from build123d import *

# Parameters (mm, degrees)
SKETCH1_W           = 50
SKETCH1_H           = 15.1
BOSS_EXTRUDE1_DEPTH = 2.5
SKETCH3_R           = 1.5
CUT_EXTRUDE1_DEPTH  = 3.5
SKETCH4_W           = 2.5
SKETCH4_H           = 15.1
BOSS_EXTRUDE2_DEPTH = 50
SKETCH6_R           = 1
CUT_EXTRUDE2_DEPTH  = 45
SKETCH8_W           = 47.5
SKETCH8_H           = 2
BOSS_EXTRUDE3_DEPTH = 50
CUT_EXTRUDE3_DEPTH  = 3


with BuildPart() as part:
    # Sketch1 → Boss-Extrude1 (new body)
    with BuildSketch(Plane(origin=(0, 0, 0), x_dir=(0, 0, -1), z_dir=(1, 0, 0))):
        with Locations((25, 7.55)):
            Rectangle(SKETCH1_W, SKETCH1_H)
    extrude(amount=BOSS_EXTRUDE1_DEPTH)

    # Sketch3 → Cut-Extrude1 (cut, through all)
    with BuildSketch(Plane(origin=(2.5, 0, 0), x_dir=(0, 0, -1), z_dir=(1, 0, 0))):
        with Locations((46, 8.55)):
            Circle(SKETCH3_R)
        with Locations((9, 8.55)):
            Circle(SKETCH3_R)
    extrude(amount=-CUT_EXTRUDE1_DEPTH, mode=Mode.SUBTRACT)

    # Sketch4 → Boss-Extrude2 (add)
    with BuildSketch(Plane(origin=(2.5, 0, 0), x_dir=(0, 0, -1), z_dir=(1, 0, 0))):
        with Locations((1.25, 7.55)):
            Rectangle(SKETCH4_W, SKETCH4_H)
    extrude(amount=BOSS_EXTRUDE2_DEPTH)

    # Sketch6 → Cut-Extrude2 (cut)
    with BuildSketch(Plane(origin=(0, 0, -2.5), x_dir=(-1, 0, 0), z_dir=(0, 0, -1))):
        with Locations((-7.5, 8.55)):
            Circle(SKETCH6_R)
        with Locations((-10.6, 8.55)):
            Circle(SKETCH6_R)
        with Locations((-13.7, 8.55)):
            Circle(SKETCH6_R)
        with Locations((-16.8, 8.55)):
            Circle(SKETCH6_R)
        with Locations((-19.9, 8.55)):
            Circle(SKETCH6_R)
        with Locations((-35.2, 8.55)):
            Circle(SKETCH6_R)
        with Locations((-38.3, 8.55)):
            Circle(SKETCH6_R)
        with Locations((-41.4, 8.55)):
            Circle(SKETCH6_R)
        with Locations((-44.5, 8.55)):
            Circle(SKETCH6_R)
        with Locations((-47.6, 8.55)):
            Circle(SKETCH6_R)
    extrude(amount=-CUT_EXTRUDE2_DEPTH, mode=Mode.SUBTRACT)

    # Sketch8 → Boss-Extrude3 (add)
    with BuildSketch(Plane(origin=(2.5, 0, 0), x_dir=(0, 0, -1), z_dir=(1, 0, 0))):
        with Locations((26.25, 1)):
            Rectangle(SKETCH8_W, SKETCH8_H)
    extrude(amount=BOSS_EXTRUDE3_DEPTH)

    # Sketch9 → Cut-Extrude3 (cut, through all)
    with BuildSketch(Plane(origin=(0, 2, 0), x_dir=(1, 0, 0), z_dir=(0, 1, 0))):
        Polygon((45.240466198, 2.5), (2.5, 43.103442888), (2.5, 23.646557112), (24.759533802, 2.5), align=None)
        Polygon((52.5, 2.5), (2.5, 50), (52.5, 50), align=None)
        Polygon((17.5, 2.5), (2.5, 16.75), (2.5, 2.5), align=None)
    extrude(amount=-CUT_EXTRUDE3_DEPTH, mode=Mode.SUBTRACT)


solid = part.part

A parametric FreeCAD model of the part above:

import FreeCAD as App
import Part
import Sketcher
from FreeCAD import Vector


def add_polygon(sketch, points):
    """Adds a closed chain of lines whose ends are joined by coincident constraints."""
    first, n = sketch.GeometryCount, len(points)
    for a, b in zip(points, points[1:] + points[:1]):
        sketch.addGeometry(Part.LineSegment(App.Vector(*a, 0), App.Vector(*b, 0)), False)
    for i in range(n):
        sketch.addConstraint(Sketcher.Constraint("Coincident", first + i, 2, first + (i + 1) % n, 1))

doc = App.newDocument("Part")
body = doc.addObject("PartDesign::Body", "Body")

sketch1 = doc.addObject("Sketcher::SketchObject", "Sketch")
body.addObject(sketch1)
sketch1.AttachmentSupport = (doc.YZ_Plane, [""])
sketch1.MapMode = "FlatFace"
add_polygon(sketch1, [(15, 0), (0, 0), (0, -50), (15, -50)])
sketch1.addConstraint([
    Sketcher.Constraint("Horizontal", 0),
    Sketcher.Constraint("Vertical", 1),
    Sketcher.Constraint("Horizontal", 2),
    Sketcher.Constraint("Vertical", 3),
    Sketcher.Constraint("Coincident", 0, 2, -1, 1),
    Sketcher.Constraint("DistanceY", 1, 2, 1, 1, 50.0),
    Sketcher.Constraint("DistanceX", 0, 2, 0, 1, 15.1),
])
pad1 = doc.addObject("PartDesign::Pad", "Pad")
body.addObject(pad1)
pad1.Profile = sketch1
pad1.Length = 2.5

sketch2 = doc.addObject("Sketcher::SketchObject", "Sketch001")
body.addObject(sketch2)
sketch2.AttachmentSupport = (doc.YZ_Plane, [""])
sketch2.MapMode = "FlatFace"
sketch2.AttachmentOffset = App.Placement(Vector(0, 0, 2.5), App.Rotation())
sketch2.addGeometry([
    Part.Circle(Vector(8.6, -46, 0), Vector(0, 0, 1), 1.5),
    Part.Circle(Vector(8.6, -9, 0), Vector(0, 0, 1), 1.5),
], False)
sketch2.addConstraint([
    Sketcher.Constraint("Equal", 0, 1),
    Sketcher.Constraint("Vertical", 0, 3, 1, 3),
    Sketcher.Constraint("Diameter", 0, 3.0),
    Sketcher.Constraint("DistanceY", 0, 3, -1, 1, 46.0),
    Sketcher.Constraint("DistanceY", 1, 3, -1, 1, 9.0),
    Sketcher.Constraint("DistanceX", -1, 1, 0, 3, 8.55),
])
pocket1 = doc.addObject("PartDesign::Pocket", "Pocket")
body.addObject(pocket1)
pocket1.Profile = sketch2
pocket1.Type = "ThroughAll"

sketch3 = doc.addObject("Sketcher::SketchObject", "Sketch002")
body.addObject(sketch3)
sketch3.AttachmentSupport = (doc.YZ_Plane, [""])
sketch3.MapMode = "FlatFace"
sketch3.AttachmentOffset = App.Placement(Vector(0, 0, 2.5), App.Rotation())
add_polygon(sketch3, [(15.1, 0), (0, 0), (0, -2.5), (15.1, -2.5)])
sketch3.addConstraint([
    Sketcher.Constraint("Horizontal", 0),
    Sketcher.Constraint("Vertical", 1),
    Sketcher.Constraint("Horizontal", 2),
    Sketcher.Constraint("Vertical", 3),
    Sketcher.Constraint("Coincident", 0, 2, -1, 1),
    Sketcher.Constraint("DistanceX", 0, 2, 0, 1, 15.1),
    Sketcher.Constraint("DistanceY", 1, 2, 1, 1, 2.5),
])
pad2 = doc.addObject("PartDesign::Pad", "Pad001")
body.addObject(pad2)
pad2.Profile = sketch3
pad2.Length = 50

sketch4 = doc.addObject("Sketcher::SketchObject", "Sketch003")
body.addObject(sketch4)
sketch4.AttachmentSupport = (doc.XY_Plane, [""])
sketch4.MapMode = "FlatFace"
sketch4.AttachmentOffset = App.Placement(Vector(0, 0, -2.5), App.Rotation())
sketch4.addGeometry([
    Part.Circle(Vector(7.5, 8.6, 0), Vector(0, 0, 1), 1),
    Part.Circle(Vector(10.6, 8.6, 0), Vector(0, 0, 1), 1),
    Part.Circle(Vector(13.7, 8.6, 0), Vector(0, 0, 1), 1),
    Part.Circle(Vector(16.8, 8.6, 0), Vector(0, 0, 1), 1),
    Part.Circle(Vector(19.9, 8.6, 0), Vector(0, 0, 1), 1),
    Part.Circle(Vector(35.2, 8.6, 0), Vector(0, 0, 1), 1),
    Part.Circle(Vector(38.3, 8.6, 0), Vector(0, 0, 1), 1),
    Part.Circle(Vector(41.4, 8.6, 0), Vector(0, 0, 1), 1),
    Part.Circle(Vector(44.5, 8.6, 0), Vector(0, 0, 1), 1),
    Part.Circle(Vector(47.6, 8.6, 0), Vector(0, 0, 1), 1),
], False)
sketch4.addConstraint([
    Sketcher.Constraint("Equal", 0, 1),
    Sketcher.Constraint("Equal", 1, 2),
    Sketcher.Constraint("Equal", 2, 3),
    Sketcher.Constraint("Equal", 3, 4),
    Sketcher.Constraint("Equal", 4, 5),
    Sketcher.Constraint("Equal", 5, 6),
    Sketcher.Constraint("Equal", 6, 7),
    Sketcher.Constraint("Equal", 7, 8),
    Sketcher.Constraint("Equal", 8, 9),
    Sketcher.Constraint("Horizontal", 0, 3, 1, 3),
    Sketcher.Constraint("Horizontal", 1, 3, 2, 3),
    Sketcher.Constraint("Horizontal", 2, 3, 3, 3),
    Sketcher.Constraint("Horizontal", 3, 3, 4, 3),
    Sketcher.Constraint("Horizontal", 4, 3, 5, 3),
    Sketcher.Constraint("Horizontal", 5, 3, 6, 3),
    Sketcher.Constraint("Horizontal", 6, 3, 7, 3),
    Sketcher.Constraint("Horizontal", 7, 3, 8, 3),
    Sketcher.Constraint("Horizontal", 8, 3, 9, 3),
    Sketcher.Constraint("Diameter", 0, 2.0),
    Sketcher.Constraint("DistanceX", -1, 1, 0, 3, 7.5),
    Sketcher.Constraint("DistanceX", -1, 1, 1, 3, 10.6),
    Sketcher.Constraint("DistanceX", -1, 1, 2, 3, 13.7),
    Sketcher.Constraint("DistanceX", -1, 1, 3, 3, 16.8),
    Sketcher.Constraint("DistanceX", -1, 1, 4, 3, 19.9),
    Sketcher.Constraint("DistanceX", -1, 1, 5, 3, 35.2),
    Sketcher.Constraint("DistanceX", -1, 1, 6, 3, 38.3),
    Sketcher.Constraint("DistanceX", -1, 1, 7, 3, 41.4),
    Sketcher.Constraint("DistanceX", -1, 1, 8, 3, 44.5),
    Sketcher.Constraint("DistanceX", -1, 1, 9, 3, 47.6),
    Sketcher.Constraint("DistanceY", -1, 1, 0, 3, 8.55),
])
pocket2 = doc.addObject("PartDesign::Pocket", "Pocket001")
body.addObject(pocket2)
pocket2.Profile = sketch4
pocket2.Length = 45
pocket2.Reversed = True

sketch5 = doc.addObject("Sketcher::SketchObject", "Sketch004")
body.addObject(sketch5)
sketch5.AttachmentSupport = (doc.YZ_Plane, [""])
sketch5.MapMode = "FlatFace"
sketch5.AttachmentOffset = App.Placement(Vector(0, 0, 2.5), App.Rotation())
add_polygon(sketch5, [(2, -2.5), (0, -2.5), (0, -50), (2, -50)])
sketch5.addConstraint([
    Sketcher.Constraint("Horizontal", 0),
    Sketcher.Constraint("Vertical", 1),
    Sketcher.Constraint("Horizontal", 2),
    Sketcher.Constraint("Vertical", 3),
    Sketcher.Constraint("PointOnObject", 0, 2, -2),
    Sketcher.Constraint("DistanceX", 0, 2, 0, 1, 2.0),
    Sketcher.Constraint("DistanceY", 1, 2, 1, 1, 47.5),
    Sketcher.Constraint("DistanceY", 1, 2, -1, 1, 50.0),
])
pad3 = doc.addObject("PartDesign::Pad", "Pad002")
body.addObject(pad3)
pad3.Profile = sketch5
pad3.Length = 50

sketch6 = doc.addObject("Sketcher::SketchObject", "Sketch005")
body.addObject(sketch6)
sketch6.AttachmentSupport = (doc.XZ_Plane, [""])
sketch6.MapMode = "FlatFace"
sketch6.AttachmentOffset = App.Placement(Vector(0, 0, -2), App.Rotation())
add_polygon(sketch6, [(45, -2), (2, -43), (2, -24), (25, -2)])
add_polygon(sketch6, [(2, -50), (52, -2), (52, -50)])
add_polygon(sketch6, [(18, -2), (2, -17), (2, -2)])
sketch6.addConstraint([
    Sketcher.Constraint("Vertical", 1),
    Sketcher.Constraint("Horizontal", 3),
    Sketcher.Constraint("Vertical", 5),
    Sketcher.Constraint("Horizontal", 6),
    Sketcher.Constraint("Vertical", 8),
    Sketcher.Constraint("Horizontal", 9),
    Sketcher.Constraint("Parallel", 0, 2),
    Sketcher.Constraint("Parallel", 2, 4),
    Sketcher.Constraint("Parallel", 4, 7),
    Sketcher.Constraint("Horizontal", 3, 2, 4, 2),
    Sketcher.Constraint("Horizontal", 4, 2, 8, 2),
    Sketcher.Constraint("Vertical", 1, 2, 6, 2),
    Sketcher.Constraint("Vertical", 6, 2, 7, 2),
    Sketcher.Constraint("DistanceX", 6, 2, 6, 1, 50.0),
    Sketcher.Constraint("DistanceX", 9, 1, 9, 2, 15.0),
    Sketcher.Constraint("DistanceY", 5, 2, 5, 1, 47.5),
    Sketcher.Constraint("DistanceY", 5, 2, -1, 1, 50.0),
    Sketcher.Constraint("DistanceX", -1, 1, 0, 2, 2.5),
    Sketcher.Constraint("Distance", 2, 30.702829),
    Sketcher.Constraint("DistanceX", 3, 1, 3, 2, 20.480932),
])
pocket3 = doc.addObject("PartDesign::Pocket", "Pocket002")
body.addObject(pocket3)
pocket3.Profile = sketch6
pocket3.Type = "ThroughAll"
pocket3.Reversed = True

doc.recompute()
